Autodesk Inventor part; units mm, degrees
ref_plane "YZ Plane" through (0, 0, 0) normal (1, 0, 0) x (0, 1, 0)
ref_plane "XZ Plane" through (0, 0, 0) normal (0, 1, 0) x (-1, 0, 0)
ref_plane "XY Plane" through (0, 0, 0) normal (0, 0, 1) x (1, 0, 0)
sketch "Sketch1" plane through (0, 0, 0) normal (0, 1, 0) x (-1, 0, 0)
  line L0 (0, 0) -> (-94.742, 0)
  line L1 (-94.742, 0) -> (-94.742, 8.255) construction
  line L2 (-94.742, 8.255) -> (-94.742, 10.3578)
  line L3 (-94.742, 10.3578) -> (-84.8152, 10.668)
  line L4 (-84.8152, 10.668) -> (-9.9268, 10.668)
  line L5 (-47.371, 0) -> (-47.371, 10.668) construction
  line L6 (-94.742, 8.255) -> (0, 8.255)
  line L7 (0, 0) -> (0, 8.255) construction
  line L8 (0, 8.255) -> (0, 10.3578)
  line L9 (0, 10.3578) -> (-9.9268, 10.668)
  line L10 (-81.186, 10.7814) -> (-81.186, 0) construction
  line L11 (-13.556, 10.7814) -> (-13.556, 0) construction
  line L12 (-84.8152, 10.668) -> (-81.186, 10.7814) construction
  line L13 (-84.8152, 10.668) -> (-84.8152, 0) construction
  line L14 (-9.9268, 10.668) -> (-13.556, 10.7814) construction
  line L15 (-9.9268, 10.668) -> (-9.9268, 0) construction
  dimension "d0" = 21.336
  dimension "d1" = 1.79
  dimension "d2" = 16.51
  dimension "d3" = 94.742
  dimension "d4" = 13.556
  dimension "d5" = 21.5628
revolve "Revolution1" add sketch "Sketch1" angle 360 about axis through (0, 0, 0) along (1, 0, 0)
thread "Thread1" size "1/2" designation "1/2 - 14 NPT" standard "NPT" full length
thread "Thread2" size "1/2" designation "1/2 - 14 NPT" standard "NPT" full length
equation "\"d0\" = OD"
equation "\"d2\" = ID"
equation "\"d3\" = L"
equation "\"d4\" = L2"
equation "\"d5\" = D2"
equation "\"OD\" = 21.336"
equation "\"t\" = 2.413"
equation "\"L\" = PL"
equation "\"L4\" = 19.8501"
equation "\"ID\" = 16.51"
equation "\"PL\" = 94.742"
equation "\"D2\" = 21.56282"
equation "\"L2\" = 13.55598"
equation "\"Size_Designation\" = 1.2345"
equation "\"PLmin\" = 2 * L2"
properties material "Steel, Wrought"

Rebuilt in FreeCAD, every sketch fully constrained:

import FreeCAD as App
import Part
import Sketcher
Q = App.Units.Quantity


def add_polygon(sketch, points):
    """Adds a closed chain of lines whose ends are joined by coincident constraints."""
    first, n = sketch.GeometryCount, len(points)
    for a, b in zip(points, points[1:] + points[:1]):
        sketch.addGeometry(Part.LineSegment(App.Vector(*a, 0), App.Vector(*b, 0)), False)
    for i in range(n):
        sketch.addConstraint(Sketcher.Constraint("Coincident", first + i, 2, first + (i + 1) % n, 1))

doc = App.newDocument("Part")
body = doc.addObject("PartDesign::Body", "Body")

# Sketch on XZ plane
sketch1 = body.newObject("Sketcher::SketchObject", "Sketch")
sketch1.AttachmentSupport = (doc.getObject("XZ_Plane"), [""])
sketch1.MapMode = "FlatFace"
add_polygon(sketch1, [(94.7, 10.4), (94.7, 8.3), (0, 8.3), (0, 10.4), (9.9, 10.7), (84.8, 10.7)])  # lines 0-5
sketch1.addConstraint(Sketcher.Constraint("Vertical", 0))
sketch1.addConstraint(Sketcher.Constraint("Horizontal", 1))
sketch1.addConstraint(Sketcher.Constraint("Vertical", 2))
sketch1.addConstraint(Sketcher.Constraint("Horizontal", 4))
sketch1.addConstraint(Sketcher.Constraint("PointOnObject", 1, 2, -2))
sketch1.addConstraint(Sketcher.Constraint("Horizontal", 2, 2, 5, 2))
sketch1.addConstraint(Sketcher.Constraint("Equal", 3, 5))
sketch1.addConstraint(Sketcher.Constraint("DistanceX", 1, 2, 1, 1, Q("3.73 in")))
sketch1.addConstraint(Sketcher.Constraint("Angle", 3, Q("1.7898 deg")))
sketch1.addConstraint(Sketcher.Constraint("DistanceY", -1, 1, 3, 2, Q("0.42 in")))
sketch1.addConstraint(Sketcher.Constraint("Distance", 3, Q("0.391 in")))
sketch1.addConstraint(Sketcher.Constraint("DistanceY", -1, 1, 0, 2, Q("0.325 in")))
revolution = body.newObject("PartDesign::Revolution", "Revolution")
revolution.Profile = sketch1
revolution.ReferenceAxis = (sketch1, ["H_Axis"])
revolution.Angle = 360

doc.recompute()
